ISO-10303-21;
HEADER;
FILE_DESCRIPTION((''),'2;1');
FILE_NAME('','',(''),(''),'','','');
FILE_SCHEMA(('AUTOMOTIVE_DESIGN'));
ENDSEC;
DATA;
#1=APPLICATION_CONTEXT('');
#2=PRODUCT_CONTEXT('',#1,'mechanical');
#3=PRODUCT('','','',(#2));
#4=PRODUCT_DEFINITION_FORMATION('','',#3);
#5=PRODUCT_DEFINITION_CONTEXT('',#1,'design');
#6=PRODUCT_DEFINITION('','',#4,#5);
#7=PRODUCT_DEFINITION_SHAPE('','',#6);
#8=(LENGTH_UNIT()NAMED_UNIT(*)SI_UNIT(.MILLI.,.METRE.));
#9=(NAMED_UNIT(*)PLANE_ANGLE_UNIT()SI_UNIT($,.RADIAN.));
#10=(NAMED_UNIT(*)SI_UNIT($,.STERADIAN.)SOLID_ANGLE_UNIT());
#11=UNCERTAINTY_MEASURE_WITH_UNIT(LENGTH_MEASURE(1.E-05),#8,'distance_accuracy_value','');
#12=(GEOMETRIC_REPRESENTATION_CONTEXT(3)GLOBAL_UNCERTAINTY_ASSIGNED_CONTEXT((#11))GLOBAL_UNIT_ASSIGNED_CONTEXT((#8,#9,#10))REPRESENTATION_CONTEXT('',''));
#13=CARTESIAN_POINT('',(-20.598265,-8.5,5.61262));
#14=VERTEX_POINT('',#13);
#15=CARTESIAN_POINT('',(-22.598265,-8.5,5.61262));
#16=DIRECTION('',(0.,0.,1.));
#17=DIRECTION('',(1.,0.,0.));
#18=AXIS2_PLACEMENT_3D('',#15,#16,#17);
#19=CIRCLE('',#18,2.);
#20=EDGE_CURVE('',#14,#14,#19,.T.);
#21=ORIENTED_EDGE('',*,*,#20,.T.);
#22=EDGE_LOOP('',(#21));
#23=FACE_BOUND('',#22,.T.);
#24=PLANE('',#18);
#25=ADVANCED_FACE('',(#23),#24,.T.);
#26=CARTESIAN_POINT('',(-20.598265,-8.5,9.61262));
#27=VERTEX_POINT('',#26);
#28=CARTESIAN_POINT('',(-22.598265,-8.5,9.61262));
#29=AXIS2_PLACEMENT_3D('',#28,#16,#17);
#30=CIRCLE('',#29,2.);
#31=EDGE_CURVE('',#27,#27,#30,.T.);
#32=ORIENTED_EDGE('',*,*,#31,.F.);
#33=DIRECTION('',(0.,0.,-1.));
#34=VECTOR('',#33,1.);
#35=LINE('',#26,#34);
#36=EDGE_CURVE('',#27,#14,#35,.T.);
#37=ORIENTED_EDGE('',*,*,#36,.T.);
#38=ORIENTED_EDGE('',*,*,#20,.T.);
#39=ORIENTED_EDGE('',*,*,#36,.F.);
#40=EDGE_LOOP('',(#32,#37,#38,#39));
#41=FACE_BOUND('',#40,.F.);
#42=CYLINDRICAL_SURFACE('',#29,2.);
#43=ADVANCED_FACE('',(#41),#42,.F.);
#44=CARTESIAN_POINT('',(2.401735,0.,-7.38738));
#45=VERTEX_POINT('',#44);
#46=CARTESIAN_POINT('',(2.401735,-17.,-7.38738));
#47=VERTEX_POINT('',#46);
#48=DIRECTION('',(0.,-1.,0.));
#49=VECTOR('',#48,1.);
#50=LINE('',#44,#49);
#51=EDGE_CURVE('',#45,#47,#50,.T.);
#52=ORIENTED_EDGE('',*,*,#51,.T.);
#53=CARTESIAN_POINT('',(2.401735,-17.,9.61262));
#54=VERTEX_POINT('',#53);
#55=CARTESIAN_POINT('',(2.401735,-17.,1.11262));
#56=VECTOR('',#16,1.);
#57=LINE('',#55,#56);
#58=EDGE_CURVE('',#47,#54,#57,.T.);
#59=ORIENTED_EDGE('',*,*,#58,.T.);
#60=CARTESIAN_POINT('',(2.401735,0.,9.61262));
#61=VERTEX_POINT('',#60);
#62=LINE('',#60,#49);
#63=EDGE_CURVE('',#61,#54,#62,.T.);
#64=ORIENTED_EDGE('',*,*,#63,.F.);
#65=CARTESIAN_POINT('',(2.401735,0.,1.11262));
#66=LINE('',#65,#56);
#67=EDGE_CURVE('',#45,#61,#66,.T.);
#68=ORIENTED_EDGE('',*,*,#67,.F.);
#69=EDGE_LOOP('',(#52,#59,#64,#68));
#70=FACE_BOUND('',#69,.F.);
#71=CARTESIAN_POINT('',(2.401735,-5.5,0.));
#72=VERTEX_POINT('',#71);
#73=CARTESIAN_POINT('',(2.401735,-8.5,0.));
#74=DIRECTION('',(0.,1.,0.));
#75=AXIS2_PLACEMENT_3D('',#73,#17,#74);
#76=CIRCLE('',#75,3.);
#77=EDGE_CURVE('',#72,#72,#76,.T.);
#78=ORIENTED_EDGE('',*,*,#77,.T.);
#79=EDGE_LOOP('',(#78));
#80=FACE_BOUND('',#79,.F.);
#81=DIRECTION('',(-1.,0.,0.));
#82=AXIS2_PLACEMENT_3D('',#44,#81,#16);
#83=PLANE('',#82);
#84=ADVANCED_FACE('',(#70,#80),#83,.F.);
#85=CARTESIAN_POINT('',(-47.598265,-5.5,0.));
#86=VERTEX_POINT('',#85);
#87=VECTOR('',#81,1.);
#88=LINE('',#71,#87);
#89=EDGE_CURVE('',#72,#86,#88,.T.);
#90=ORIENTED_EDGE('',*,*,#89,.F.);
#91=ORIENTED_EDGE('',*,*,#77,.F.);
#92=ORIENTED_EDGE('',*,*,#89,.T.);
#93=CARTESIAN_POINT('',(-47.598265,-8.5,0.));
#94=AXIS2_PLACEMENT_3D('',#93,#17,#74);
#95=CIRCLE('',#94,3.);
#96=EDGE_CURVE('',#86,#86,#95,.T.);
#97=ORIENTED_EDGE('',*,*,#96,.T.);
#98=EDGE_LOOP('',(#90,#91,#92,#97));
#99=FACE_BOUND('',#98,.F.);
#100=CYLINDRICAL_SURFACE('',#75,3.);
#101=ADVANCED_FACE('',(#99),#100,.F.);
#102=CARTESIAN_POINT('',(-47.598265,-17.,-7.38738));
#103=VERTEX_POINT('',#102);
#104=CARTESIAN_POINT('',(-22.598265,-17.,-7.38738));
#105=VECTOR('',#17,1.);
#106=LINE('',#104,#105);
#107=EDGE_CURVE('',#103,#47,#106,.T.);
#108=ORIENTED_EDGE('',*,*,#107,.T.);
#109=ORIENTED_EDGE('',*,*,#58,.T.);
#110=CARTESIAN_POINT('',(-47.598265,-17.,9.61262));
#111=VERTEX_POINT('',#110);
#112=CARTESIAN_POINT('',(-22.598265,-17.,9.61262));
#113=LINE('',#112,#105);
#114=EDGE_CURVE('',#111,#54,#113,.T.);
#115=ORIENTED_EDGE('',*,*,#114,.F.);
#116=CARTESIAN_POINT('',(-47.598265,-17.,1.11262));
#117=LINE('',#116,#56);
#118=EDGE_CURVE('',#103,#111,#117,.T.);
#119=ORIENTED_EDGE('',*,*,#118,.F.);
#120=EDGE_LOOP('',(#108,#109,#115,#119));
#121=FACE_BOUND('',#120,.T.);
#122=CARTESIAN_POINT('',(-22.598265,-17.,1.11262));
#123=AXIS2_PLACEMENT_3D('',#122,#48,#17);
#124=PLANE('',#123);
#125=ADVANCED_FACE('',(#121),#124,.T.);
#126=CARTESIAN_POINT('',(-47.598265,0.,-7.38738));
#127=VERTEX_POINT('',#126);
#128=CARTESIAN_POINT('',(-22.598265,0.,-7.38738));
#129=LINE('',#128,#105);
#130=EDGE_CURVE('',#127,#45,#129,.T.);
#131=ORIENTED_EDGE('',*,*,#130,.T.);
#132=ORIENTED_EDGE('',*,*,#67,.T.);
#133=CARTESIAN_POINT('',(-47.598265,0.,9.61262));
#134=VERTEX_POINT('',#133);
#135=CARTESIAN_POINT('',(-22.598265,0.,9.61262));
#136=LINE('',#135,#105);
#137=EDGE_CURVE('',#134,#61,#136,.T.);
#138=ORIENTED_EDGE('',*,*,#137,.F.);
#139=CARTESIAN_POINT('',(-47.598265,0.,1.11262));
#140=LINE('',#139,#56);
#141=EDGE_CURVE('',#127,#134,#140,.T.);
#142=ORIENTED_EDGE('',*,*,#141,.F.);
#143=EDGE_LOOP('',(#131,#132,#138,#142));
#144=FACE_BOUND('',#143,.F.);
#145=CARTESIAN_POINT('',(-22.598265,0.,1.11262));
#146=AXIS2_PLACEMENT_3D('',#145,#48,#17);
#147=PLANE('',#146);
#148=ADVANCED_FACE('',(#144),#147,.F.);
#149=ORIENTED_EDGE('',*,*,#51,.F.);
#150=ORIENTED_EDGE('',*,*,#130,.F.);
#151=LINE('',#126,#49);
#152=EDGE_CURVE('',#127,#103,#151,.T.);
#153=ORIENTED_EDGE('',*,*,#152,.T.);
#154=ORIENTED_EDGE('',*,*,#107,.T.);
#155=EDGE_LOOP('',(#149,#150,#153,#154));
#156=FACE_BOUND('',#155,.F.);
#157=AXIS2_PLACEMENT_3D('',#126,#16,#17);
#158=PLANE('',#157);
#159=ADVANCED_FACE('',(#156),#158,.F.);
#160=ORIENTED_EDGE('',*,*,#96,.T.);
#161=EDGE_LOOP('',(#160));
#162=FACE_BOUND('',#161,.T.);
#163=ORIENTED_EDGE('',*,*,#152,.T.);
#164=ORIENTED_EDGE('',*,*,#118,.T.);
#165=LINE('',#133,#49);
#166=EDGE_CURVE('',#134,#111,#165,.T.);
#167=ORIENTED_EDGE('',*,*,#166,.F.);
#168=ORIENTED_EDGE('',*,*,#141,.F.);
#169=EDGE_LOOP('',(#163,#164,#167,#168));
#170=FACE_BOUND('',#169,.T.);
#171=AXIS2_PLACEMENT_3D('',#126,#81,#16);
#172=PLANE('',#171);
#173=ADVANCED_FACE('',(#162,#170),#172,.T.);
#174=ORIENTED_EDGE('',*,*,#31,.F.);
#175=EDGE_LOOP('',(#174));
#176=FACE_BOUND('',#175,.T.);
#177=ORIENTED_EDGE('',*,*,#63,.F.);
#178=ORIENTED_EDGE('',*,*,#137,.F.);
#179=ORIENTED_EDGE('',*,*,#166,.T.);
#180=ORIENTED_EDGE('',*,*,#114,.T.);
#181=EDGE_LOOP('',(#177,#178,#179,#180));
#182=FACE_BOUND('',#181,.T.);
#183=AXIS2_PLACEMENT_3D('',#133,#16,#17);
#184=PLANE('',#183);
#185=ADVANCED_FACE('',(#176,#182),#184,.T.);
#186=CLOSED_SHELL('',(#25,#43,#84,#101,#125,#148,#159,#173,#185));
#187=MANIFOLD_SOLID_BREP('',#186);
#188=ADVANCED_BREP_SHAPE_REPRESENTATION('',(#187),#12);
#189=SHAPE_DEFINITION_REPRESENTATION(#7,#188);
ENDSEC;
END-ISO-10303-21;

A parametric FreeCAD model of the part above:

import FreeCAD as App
import Part
import Sketcher

V = App.Vector
Q = App.Units.Quantity

doc = App.newDocument("Part")
body = doc.addObject("PartDesign::Body", "Body")

sketch1 = body.newObject("Sketcher::SketchObject", "Sketch")
sketch1.AttachmentSupport = (doc.getObject("XZ_Plane"), [""])
sketch1.MapMode = "FlatFace"
sketch1.addGeometry([
    Part.LineSegment(V(-48, 10, 0), V(-48, -7, 0)),
    Part.LineSegment(V(-48, -7, 0), V(2, -7, 0)),
    Part.LineSegment(V(2, -7, 0), V(2, 10, 0)),
    Part.LineSegment(V(2, 10, 0), V(-48, 10, 0)),
], False)
sketch1.addConstraint([
    Sketcher.Constraint("Coincident", 0, 2, 1, 1),
    Sketcher.Constraint("Coincident", 1, 2, 2, 1),
    Sketcher.Constraint("Coincident", 2, 2, 3, 1),
    Sketcher.Constraint("Coincident", 3, 2, 0, 1),
    Sketcher.Constraint("Vertical", 0),
    Sketcher.Constraint("Horizontal", 1),
    Sketcher.Constraint("Vertical", 2),
    Sketcher.Constraint("Horizontal", 3),
    Sketcher.Constraint("DistanceX", 1, 1, 1, 2, Q("50 mm")),
    Sketcher.Constraint("DistanceY", 0, 2, 0, 1, Q("17 mm")),
    Sketcher.Constraint("DistanceY", 0, 2, -1, 1, Q("7.38738 mm")),
    Sketcher.Constraint("DistanceX", 0, 2, -1, 1, Q("47.598265 mm")),
])
pad1 = body.newObject("PartDesign::Pad", "Pad")
pad1.Profile = sketch1
pad1.Length = 17

sketch2 = body.newObject("Sketcher::SketchObject", "Sketch001")
sketch2.AttachmentSupport = (doc.getObject("YZ_Plane"), [""])
sketch2.MapMode = "FlatFace"
sketch2.AttachmentOffset = App.Placement(V(0, 0, 2.401735), App.Rotation())
sketch2.addGeometry(Part.Circle(V(-8.5, 0, 0), V(0, 0, 1), 3), False)
sketch2.addConstraint([
    Sketcher.Constraint("PointOnObject", 0, 3, -1),
    Sketcher.Constraint("Diameter", 0, Q("6 mm")),
    Sketcher.Constraint("DistanceX", 0, 3, -1, 1, Q("8.5 mm")),
])
pocket1 = body.newObject("PartDesign::Pocket", "Pocket")
pocket1.Profile = sketch2
pocket1.Length = 50.1

sketch3 = body.newObject("Sketcher::SketchObject", "Sketch002")
sketch3.AttachmentSupport = (doc.getObject("XY_Plane"), [""])
sketch3.MapMode = "FlatFace"
sketch3.AttachmentOffset = App.Placement(V(0, 0, 9.61262), App.Rotation())
sketch3.addGeometry(Part.Circle(V(-22.6, -8.5, 0), V(0, 0, 1), 2), False)
sketch3.addConstraint([
    Sketcher.Constraint("Diameter", 0, Q("4 mm")),
    Sketcher.Constraint("DistanceY", 0, 3, -1, 1, Q("8.5 mm")),
    Sketcher.Constraint("DistanceX", 0, 3, -1, 1, Q("22.598265 mm")),
])
pocket2 = body.newObject("PartDesign::Pocket", "Pocket001")
pocket2.Profile = sketch3
pocket2.Length = 4

doc.recompute()
